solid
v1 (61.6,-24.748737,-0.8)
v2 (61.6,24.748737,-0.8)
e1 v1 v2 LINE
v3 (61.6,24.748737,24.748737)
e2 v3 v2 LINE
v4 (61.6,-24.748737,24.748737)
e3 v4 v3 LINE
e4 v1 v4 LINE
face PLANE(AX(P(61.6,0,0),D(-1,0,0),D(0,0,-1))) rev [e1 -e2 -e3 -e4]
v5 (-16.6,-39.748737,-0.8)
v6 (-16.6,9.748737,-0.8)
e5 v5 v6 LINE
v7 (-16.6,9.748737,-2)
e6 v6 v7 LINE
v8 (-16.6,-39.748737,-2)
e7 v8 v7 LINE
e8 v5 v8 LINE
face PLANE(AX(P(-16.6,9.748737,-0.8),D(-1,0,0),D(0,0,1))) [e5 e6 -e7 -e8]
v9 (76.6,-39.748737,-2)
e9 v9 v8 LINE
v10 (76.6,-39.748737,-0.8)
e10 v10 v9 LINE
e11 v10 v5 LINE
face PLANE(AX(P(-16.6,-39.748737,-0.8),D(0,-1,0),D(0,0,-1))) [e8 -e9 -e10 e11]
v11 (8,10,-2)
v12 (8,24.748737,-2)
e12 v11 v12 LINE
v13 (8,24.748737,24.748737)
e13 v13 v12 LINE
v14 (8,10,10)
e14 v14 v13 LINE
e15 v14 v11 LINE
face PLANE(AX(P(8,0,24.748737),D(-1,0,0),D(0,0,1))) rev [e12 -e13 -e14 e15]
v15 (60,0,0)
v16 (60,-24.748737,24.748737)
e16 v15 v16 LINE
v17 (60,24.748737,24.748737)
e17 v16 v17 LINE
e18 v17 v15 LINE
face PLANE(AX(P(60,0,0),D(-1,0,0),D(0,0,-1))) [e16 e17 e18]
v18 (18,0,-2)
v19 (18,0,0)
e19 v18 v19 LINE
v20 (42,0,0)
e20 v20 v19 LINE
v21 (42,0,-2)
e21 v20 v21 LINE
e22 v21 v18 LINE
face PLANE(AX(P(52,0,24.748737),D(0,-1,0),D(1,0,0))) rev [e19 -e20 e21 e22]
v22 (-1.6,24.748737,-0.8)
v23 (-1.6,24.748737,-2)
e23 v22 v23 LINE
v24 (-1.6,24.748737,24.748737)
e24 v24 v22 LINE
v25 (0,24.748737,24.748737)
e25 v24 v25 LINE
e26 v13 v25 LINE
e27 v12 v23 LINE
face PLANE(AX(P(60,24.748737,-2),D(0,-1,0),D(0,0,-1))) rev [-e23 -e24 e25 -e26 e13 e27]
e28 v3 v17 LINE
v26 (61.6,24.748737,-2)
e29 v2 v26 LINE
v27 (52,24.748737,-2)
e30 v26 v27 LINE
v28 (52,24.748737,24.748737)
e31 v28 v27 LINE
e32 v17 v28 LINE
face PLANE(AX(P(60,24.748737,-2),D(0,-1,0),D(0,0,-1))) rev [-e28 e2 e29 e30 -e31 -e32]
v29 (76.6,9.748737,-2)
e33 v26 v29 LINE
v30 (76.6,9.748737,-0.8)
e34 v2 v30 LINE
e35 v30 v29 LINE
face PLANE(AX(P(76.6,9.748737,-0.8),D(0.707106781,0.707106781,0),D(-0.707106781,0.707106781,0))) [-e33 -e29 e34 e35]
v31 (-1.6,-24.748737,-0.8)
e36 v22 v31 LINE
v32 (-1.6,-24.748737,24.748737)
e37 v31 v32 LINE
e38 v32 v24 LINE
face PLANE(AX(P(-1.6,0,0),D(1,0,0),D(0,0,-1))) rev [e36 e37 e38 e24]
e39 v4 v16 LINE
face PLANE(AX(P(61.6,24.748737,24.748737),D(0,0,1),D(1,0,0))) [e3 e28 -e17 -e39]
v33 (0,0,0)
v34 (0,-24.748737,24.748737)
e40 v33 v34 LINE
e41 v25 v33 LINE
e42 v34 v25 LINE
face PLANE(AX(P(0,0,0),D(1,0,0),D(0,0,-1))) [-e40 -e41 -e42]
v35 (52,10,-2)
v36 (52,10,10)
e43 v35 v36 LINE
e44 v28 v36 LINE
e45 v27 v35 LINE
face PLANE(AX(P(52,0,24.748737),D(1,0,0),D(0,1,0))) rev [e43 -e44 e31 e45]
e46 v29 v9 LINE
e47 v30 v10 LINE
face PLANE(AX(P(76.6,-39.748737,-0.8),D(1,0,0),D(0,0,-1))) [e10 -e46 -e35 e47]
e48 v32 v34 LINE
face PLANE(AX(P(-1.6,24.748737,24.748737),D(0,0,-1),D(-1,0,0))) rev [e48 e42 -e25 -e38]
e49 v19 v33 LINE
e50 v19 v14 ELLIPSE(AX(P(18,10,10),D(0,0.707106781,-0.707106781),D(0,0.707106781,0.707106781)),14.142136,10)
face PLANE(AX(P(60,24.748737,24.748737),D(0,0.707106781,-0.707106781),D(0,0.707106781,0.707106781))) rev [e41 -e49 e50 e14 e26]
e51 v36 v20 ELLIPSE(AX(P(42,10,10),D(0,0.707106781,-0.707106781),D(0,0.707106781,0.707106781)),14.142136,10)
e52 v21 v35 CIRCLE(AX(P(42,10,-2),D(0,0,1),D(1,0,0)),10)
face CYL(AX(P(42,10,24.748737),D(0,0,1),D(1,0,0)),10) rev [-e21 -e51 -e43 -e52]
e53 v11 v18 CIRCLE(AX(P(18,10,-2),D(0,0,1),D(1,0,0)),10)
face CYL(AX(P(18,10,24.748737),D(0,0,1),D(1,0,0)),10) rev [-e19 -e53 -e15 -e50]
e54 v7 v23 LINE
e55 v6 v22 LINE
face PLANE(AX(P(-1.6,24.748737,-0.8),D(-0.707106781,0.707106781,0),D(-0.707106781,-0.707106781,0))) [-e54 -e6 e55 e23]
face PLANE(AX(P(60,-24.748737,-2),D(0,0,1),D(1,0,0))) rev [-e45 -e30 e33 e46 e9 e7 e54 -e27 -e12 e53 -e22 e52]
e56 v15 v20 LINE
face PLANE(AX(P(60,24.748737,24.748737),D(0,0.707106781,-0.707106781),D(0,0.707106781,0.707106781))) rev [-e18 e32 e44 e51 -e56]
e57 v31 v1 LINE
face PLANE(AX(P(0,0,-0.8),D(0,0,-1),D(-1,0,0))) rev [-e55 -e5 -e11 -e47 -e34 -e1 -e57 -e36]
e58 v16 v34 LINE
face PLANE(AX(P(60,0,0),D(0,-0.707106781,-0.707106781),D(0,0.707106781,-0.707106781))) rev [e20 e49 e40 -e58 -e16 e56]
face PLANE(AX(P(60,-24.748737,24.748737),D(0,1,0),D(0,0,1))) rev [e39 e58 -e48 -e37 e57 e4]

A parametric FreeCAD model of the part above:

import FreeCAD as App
import Part
import Sketcher

V = App.Vector


def edges_at(feature, points):
    """Names of the edges that pass closest to the given points."""
    edges = feature.Shape.Edges
    near = lambda p: min(range(len(edges)), key=lambda i: edges[i].distToShape(Part.Vertex(*p))[0])
    return sorted({f"Edge{near(p) + 1}" for p in points})

doc = App.newDocument("Part")
body = doc.addObject("PartDesign::Body", "Body")

# Sketch on YZ plane
sketch1 = doc.addObject("Sketcher::SketchObject", "Sketch")
body.addObject(sketch1)
sketch1.AttachmentSupport = (doc.YZ_Plane, [""])
sketch1.MapMode = "FlatFace"
sketch1.addGeometry([
    Part.LineSegment(V(25, 25, 0), V(0, 0, 0)),  # 0
    Part.LineSegment(V(0, 0, 0), V(-25, 25, 0)),  # 1
    Part.LineSegment(V(-25, 25, 0), V(-25, -2, 0)),  # 2
    Part.LineSegment(V(-25, -2, 0), V(25, -2, 0)),  # 3
    Part.LineSegment(V(25, -2, 0), V(25, 25, 0)),  # 4
], False)
sketch1.addConstraint([
    Sketcher.Constraint("Coincident", 0, 2, 1, 1),
    Sketcher.Constraint("Coincident", 1, 2, 2, 1),
    Sketcher.Constraint("Coincident", 2, 2, 3, 1),
    Sketcher.Constraint("Coincident", 3, 2, 4, 1),
    Sketcher.Constraint("Coincident", 4, 2, 0, 1),
    Sketcher.Constraint("Vertical", 2),
    Sketcher.Constraint("Horizontal", 3),
    Sketcher.Constraint("Vertical", 4),
    Sketcher.Constraint("Coincident", 0, 2, -1, 1),
    Sketcher.Constraint("Symmetric", 1, 2, 4, 2, -2),
    Sketcher.Constraint("Perpendicular", 0, 1),
    Sketcher.Constraint("Distance", 0, 35.0),
    Sketcher.Constraint("DistanceY", 2, 2, -1, 1, 2.0),
])
pad1 = doc.addObject("PartDesign::Pad", "Pad")
body.addObject(pad1)
pad1.Profile = sketch1
pad1.Length = 60

# Sketch on XY plane
sketch2 = doc.addObject("Sketcher::SketchObject", "Sketch001")
body.addObject(sketch2)
sketch2.AttachmentSupport = (doc.XY_Plane, [""])
sketch2.MapMode = "FlatFace"
sketch2.AttachmentOffset = App.Placement(V(0, 0, -2), App.Rotation())
sketch2.addGeometry([
    Part.LineSegment(V(52, 25, 0), V(52, 0, 0)),
    Part.LineSegment(V(52, 0, 0), V(8, 0, 0)),
    Part.LineSegment(V(8, 0, 0), V(8, 25, 0)),
    Part.LineSegment(V(8, 25, 0), V(52, 25, 0)),
], False)
sketch2.addConstraint([
    Sketcher.Constraint("Coincident", 0, 2, 1, 1),
    Sketcher.Constraint("Coincident", 1, 2, 2, 1),
    Sketcher.Constraint("Coincident", 2, 2, 3, 1),
    Sketcher.Constraint("Coincident", 3, 2, 0, 1),
    Sketcher.Constraint("Vertical", 0),
    Sketcher.Constraint("Horizontal", 1),
    Sketcher.Constraint("Vertical", 2),
    Sketcher.Constraint("Horizontal", 3),
    Sketcher.Constraint("PointOnObject", 0, 2, -1),
    Sketcher.Constraint("DistanceX", 1, 2, 1, 1, 44.0),
    Sketcher.Constraint("DistanceX", -1, 1, 0, 2, 52.0),
    Sketcher.Constraint("DistanceY", 0, 2, 0, 1, 24.748737),
])
pocket1 = doc.addObject("PartDesign::Pocket", "Pocket")
body.addObject(pocket1)
pocket1.Profile = sketch2
pocket1.Type = "ThroughAll"
pocket1.Reversed = True
doc.recompute()

fillet = doc.addObject("PartDesign::Fillet", "Fillet")
body.addObject(fillet)
fillet.Base = (pocket1, edges_at(pocket1, [(8, 0, -1), (52, 0, -1)]))
fillet.Radius = 10

# Sketch on YZ plane
sketch3 = doc.addObject("Sketcher::SketchObject", "Sketch002")
body.addObject(sketch3)
sketch3.AttachmentSupport = (doc.YZ_Plane, [""])
sketch3.MapMode = "FlatFace"
sketch3.addGeometry([
    Part.LineSegment(V(25, -2, 0), V(-25, -2, 0)),
    Part.LineSegment(V(-25, -2, 0), V(-25, 25, 0)),
    Part.LineSegment(V(-25, 25, 0), V(25, 25, 0)),
    Part.LineSegment(V(25, 25, 0), V(25, -2, 0)),
], False)
sketch3.addConstraint([
    Sketcher.Constraint("Coincident", 0, 2, 1, 1),
    Sketcher.Constraint("Coincident", 1, 2, 2, 1),
    Sketcher.Constraint("Coincident", 2, 2, 3, 1),
    Sketcher.Constraint("Coincident", 3, 2, 0, 1),
    Sketcher.Constraint("Horizontal", 0),
    Sketcher.Constraint("Vertical", 1),
    Sketcher.Constraint("Horizontal", 2),
    Sketcher.Constraint("Vertical", 3),
    Sketcher.Constraint("DistanceY", 0, 2, -1, 1, 2.0),
    Sketcher.Constraint("DistanceX", 0, 2, 0, 1, 49.497475),
    Sketcher.Constraint("DistanceY", 1, 1, 1, 2, 26.748737),
    Sketcher.Constraint("DistanceX", 0, 2, -1, 1, 24.748737),
])
pad2 = doc.addObject("PartDesign::Pad", "Pad001")
body.addObject(pad2)
pad2.Profile = sketch3
pad2.Length = 1.6
pad2.Reversed = True
doc.recompute()

datumplane = doc.addObject("PartDesign::Plane", "DatumPlane")
body.addObject(datumplane)
datumplane.AttachmentSupport = (doc.YZ_Plane, [""])
datumplane.MapMode = "FlatFace"
datumplane.AttachmentOffset = App.Placement(V(0, 0, 30), App.Rotation())
mirrored = doc.addObject("PartDesign::Mirrored", "Mirrored")
body.addObject(mirrored)
mirrored.Originals = [pad2]
mirrored.MirrorPlane = (datumplane, [""])
body.Tip = mirrored

# Sketch on XY plane
sketch4 = doc.addObject("Sketcher::SketchObject", "Sketch003")
body.addObject(sketch4)
sketch4.AttachmentSupport = (doc.XY_Plane, [""])
sketch4.MapMode = "FlatFace"
sketch4.AttachmentOffset = App.Placement(V(0, 0, -2), App.Rotation())
sketch4.addGeometry([
    Part.LineSegment(V(-17, 10, 0), V(-2, 25, 0)),  # 0
    Part.LineSegment(V(-2, 25, 0), V(-2, -25, 0)),  # 1
    Part.LineSegment(V(-2, -25, 0), V(62, -25, 0)),  # 2
    Part.LineSegment(V(62, -25, 0), V(62, 25, 0)),  # 3
    Part.LineSegment(V(62, 25, 0), V(77, 10, 0)),  # 4
    Part.LineSegment(V(77, 10, 0), V(77, -40, 0)),  # 5
    Part.LineSegment(V(77, -40, 0), V(-17, -40, 0)),  # 6
    Part.LineSegment(V(-17, -40, 0), V(-17, 10, 0)),  # 7
], False)
sketch4.addConstraint([
    Sketcher.Constraint("Coincident", 0, 2, 1, 1),
    Sketcher.Constraint("Coincident", 1, 2, 2, 1),
    Sketcher.Constraint("Coincident", 2, 2, 3, 1),
    Sketcher.Constraint("Coincident", 3, 2, 4, 1),
    Sketcher.Constraint("Coincident", 4, 2, 5, 1),
    Sketcher.Constraint("Coincident", 5, 2, 6, 1),
    Sketcher.Constraint("Coincident", 6, 2, 7, 1),
    Sketcher.Constraint("Coincident", 7, 2, 0, 1),
    Sketcher.Constraint("Vertical", 1),
    Sketcher.Constraint("Horizontal", 2),
    Sketcher.Constraint("Vertical", 3),
    Sketcher.Constraint("Vertical", 5),
    Sketcher.Constraint("Horizontal", 6),
    Sketcher.Constraint("Vertical", 7),
    Sketcher.Constraint("Perpendicular", 0, 4),
    Sketcher.Constraint("Horizontal", 0, 2, 3, 2),
    Sketcher.Constraint("Horizontal", 4, 2, 7, 2),
    Sketcher.Constraint("Equal", 3, 5),
    Sketcher.Constraint("Equal", 0, 4),
    Sketcher.Constraint("DistanceX", 2, 1, 2, 2, 63.2),
    Sketcher.Constraint("DistanceX", 6, 2, 6, 1, 93.2),
    Sketcher.Constraint("DistanceX", 0, 2, -1, 1, 1.6),
    Sketcher.Constraint("DistanceY", 1, 2, 1, 1, 49.497475),
    Sketcher.Constraint("DistanceY", -1, 1, 0, 2, 24.748737),
])
pad3 = doc.addObject("PartDesign::Pad", "Pad002")
body.addObject(pad3)
pad3.Profile = sketch4
pad3.Length = 1.2

doc.recompute()
